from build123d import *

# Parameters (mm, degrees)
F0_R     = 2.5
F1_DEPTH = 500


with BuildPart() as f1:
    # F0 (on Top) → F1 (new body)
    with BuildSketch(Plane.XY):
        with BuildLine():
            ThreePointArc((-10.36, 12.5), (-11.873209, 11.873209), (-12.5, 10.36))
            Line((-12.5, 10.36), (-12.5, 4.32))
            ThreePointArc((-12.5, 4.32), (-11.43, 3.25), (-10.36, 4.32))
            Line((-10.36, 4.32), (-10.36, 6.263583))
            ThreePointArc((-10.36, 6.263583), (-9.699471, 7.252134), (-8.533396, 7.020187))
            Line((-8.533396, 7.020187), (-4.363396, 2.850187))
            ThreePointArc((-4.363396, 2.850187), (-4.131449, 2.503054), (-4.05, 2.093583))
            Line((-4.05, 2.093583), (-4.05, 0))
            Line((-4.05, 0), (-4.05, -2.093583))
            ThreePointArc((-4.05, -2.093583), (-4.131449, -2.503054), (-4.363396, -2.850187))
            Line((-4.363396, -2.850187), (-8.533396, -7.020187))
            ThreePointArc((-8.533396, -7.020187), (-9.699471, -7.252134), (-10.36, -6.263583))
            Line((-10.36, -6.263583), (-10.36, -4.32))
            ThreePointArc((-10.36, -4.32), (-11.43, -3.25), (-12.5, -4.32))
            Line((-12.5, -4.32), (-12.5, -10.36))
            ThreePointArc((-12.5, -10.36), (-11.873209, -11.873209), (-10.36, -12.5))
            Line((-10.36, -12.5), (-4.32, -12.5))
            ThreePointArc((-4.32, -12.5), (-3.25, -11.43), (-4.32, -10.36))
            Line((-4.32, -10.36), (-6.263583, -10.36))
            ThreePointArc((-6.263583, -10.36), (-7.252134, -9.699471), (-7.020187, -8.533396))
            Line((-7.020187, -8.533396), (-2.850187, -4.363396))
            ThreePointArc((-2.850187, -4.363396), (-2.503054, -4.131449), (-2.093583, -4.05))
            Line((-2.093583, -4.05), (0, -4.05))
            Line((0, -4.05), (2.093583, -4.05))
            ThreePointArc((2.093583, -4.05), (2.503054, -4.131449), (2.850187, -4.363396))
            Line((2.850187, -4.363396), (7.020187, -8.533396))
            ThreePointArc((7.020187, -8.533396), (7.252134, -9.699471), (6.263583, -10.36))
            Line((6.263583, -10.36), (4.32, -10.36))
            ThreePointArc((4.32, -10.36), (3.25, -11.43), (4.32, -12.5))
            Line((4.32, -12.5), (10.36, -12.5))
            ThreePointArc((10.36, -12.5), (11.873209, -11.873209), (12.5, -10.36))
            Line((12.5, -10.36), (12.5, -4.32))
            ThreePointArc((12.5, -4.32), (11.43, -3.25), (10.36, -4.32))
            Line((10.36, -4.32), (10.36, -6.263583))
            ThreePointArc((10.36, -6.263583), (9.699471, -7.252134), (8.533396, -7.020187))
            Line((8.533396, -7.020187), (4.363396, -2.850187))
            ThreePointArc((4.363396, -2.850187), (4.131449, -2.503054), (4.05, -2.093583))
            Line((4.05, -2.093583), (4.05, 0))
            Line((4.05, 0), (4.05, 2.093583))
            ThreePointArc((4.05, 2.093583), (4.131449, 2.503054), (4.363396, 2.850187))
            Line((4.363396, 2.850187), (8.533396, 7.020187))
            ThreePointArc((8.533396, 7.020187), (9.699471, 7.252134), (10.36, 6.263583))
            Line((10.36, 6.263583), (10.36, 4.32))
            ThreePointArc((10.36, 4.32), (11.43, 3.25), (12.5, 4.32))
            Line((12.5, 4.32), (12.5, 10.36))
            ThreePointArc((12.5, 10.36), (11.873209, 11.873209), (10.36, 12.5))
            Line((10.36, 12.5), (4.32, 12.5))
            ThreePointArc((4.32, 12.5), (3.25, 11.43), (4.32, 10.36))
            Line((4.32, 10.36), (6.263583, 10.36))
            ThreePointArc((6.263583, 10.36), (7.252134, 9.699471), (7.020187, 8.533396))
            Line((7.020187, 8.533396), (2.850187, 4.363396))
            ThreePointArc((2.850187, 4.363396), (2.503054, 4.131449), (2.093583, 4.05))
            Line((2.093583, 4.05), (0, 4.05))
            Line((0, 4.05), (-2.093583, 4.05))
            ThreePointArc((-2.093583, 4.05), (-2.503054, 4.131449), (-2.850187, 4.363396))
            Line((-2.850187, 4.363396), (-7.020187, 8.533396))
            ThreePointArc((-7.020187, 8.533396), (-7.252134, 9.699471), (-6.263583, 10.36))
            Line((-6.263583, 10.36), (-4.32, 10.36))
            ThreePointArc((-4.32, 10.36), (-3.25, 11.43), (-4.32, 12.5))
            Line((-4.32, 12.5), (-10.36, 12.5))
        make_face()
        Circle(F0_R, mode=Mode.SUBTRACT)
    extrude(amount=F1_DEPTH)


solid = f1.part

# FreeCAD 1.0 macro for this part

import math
import FreeCAD as App
import Part
import Sketcher

V = App.Vector

doc = App.newDocument("Part")
params = doc.addObject("Spreadsheet::Sheet", "Params")
for row, (alias, value) in enumerate([
    ("sketch1_diameter", "5 mm"),
    ("sketch1_radius", "2.139998 mm"),
    ("sketch1_width", "6.04 mm"),
    ("pad1_length", "500 mm"),
], start=1):
    params.set(f"A{row}", alias)
    params.set(f"B{row}", "=" + value)
    params.setAlias(f"B{row}", alias)

body = doc.addObject("PartDesign::Body", "Body")

# Sketch on XY plane
sketch1 = doc.addObject("Sketcher::SketchObject", "Sketch")
body.addObject(sketch1)
sketch1.AttachmentSupport = (doc.XY_Plane, [""])
sketch1.MapMode = "FlatFace"
sketch1.addGeometry(Part.ArcOfCircle(Part.Circle(V(-10.4, 10.4, 0), V(0, 0, 1), 2.1), math.radians(90), math.radians(180)), False)
sketch1.addGeometry(Part.LineSegment(V(-12.5, 10.4, 0), V(-12.5, 4.3, 0)), False)
sketch1.addGeometry(Part.ArcOfCircle(Part.Circle(V(-11.4, 4.3, 0), V(0, 0, 1), 1.1), math.radians(180), math.radians(360)), False)
sketch1.addGeometry(Part.LineSegment(V(-10.4, 4.3, 0), V(-10.4, 6.3, 0)), False)
sketch1.addGeometry(Part.ArcOfCircle(Part.Circle(V(-9.3, 6.3, 0), V(0, 0, 1), 1.1), math.radians(45), math.radians(180)), False)
sketch1.addGeometry(Part.LineSegment(V(-8.5, 7, 0), V(-4.4, 2.9, 0)), False)
sketch1.addGeometry(Part.ArcOfCircle(Part.Circle(V(-5.1, 2.1, 0), V(0, 0, 1), 1.1), math.radians(0), math.radians(45)), False)
sketch1.addGeometry(Part.LineSegment(V(-4, 2.1, 0), V(-4, -2.1, 0)), False)
sketch1.addGeometry(Part.ArcOfCircle(Part.Circle(V(-5.1, -2.1, 0), V(0, 0, 1), 1.1), math.radians(-45), math.radians(0)), False)
sketch1.addGeometry(Part.LineSegment(V(-4.4, -2.9, 0), V(-8.5, -7, 0)), False)
sketch1.addGeometry(Part.ArcOfCircle(Part.Circle(V(-9.3, -6.3, 0), V(0, 0, 1), 1.1), math.radians(-180), math.radians(-45)), False)
sketch1.addGeometry(Part.LineSegment(V(-10.4, -6.3, 0), V(-10.4, -4.3, 0)), False)
sketch1.addGeometry(Part.ArcOfCircle(Part.Circle(V(-11.4, -4.3, 0), V(0, 0, 1), 1.1), math.radians(0), math.radians(180)), False)
sketch1.addGeometry(Part.LineSegment(V(-12.5, -4.3, 0), V(-12.5, -10.4, 0)), False)
sketch1.addGeometry(Part.ArcOfCircle(Part.Circle(V(-10.4, -10.4, 0), V(0, 0, 1), 2.1), math.radians(180), math.radians(270)), False)
sketch1.addGeometry(Part.LineSegment(V(-10.4, -12.5, 0), V(-4.3, -12.5, 0)), False)
sketch1.addGeometry(Part.ArcOfCircle(Part.Circle(V(-4.3, -11.4, 0), V(0, 0, 1), 1.1), math.radians(-90), math.radians(90)), False)
sketch1.addGeometry(Part.LineSegment(V(-4.3, -10.4, 0), V(-6.3, -10.4, 0)), False)
sketch1.addGeometry(Part.ArcOfCircle(Part.Circle(V(-6.3, -9.3, 0), V(0, 0, 1), 1.1), math.radians(135), math.radians(270)), False)
sketch1.addGeometry(Part.LineSegment(V(-7, -8.5, 0), V(-2.9, -4.4, 0)), False)
sketch1.addGeometry(Part.ArcOfCircle(Part.Circle(V(-2.1, -5.1, 0), V(0, 0, 1), 1.1), math.radians(90), math.radians(135)), False)
sketch1.addGeometry(Part.LineSegment(V(-2.1, -4, 0), V(2.1, -4, 0)), False)
sketch1.addGeometry(Part.ArcOfCircle(Part.Circle(V(2.1, -5.1, 0), V(0, 0, 1), 1.1), math.radians(45), math.radians(90)), False)
sketch1.addGeometry(Part.LineSegment(V(2.9, -4.4, 0), V(7, -8.5, 0)), False)
sketch1.addGeometry(Part.ArcOfCircle(Part.Circle(V(6.3, -9.3, 0), V(0, 0, 1), 1.1), math.radians(-90), math.radians(45)), False)
sketch1.addGeometry(Part.LineSegment(V(6.3, -10.4, 0), V(4.3, -10.4, 0)), False)
sketch1.addGeometry(Part.ArcOfCircle(Part.Circle(V(4.3, -11.4, 0), V(0, 0, 1), 1.1), math.radians(90), math.radians(270)), False)
sketch1.addGeometry(Part.LineSegment(V(4.3, -12.5, 0), V(10.4, -12.5, 0)), False)
sketch1.addGeometry(Part.ArcOfCircle(Part.Circle(V(10.4, -10.4, 0), V(0, 0, 1), 2.1), math.radians(-90), math.radians(0)), False)
sketch1.addGeometry(Part.LineSegment(V(12.5, -10.4, 0), V(12.5, -4.3, 0)), False)
sketch1.addGeometry(Part.ArcOfCircle(Part.Circle(V(11.4, -4.3, 0), V(0, 0, 1), 1.1), math.radians(0), math.radians(180)), False)
sketch1.addGeometry(Part.LineSegment(V(10.4, -4.3, 0), V(10.4, -6.3, 0)), False)
sketch1.addGeometry(Part.ArcOfCircle(Part.Circle(V(9.3, -6.3, 0), V(0, 0, 1), 1.1), math.radians(-135), math.radians(0)), False)
sketch1.addGeometry(Part.LineSegment(V(8.5, -7, 0), V(4.4, -2.9, 0)), False)
sketch1.addGeometry(Part.ArcOfCircle(Part.Circle(V(5.1, -2.1, 0), V(0, 0, 1), 1.1), math.radians(-180), math.radians(-135)), False)
sketch1.addGeometry(Part.LineSegment(V(4, -2.1, 0), V(4, 2.1, 0)), False)
sketch1.addGeometry(Part.ArcOfCircle(Part.Circle(V(5.1, 2.1, 0), V(0, 0, 1), 1.1), math.radians(135), math.radians(180)), False)
sketch1.addGeometry(Part.LineSegment(V(4.4, 2.9, 0), V(8.5, 7, 0)), False)
sketch1.addGeometry(Part.ArcOfCircle(Part.Circle(V(9.3, 6.3, 0), V(0, 0, 1), 1.1), math.radians(0), math.radians(135)), False)
sketch1.addGeometry(Part.LineSegment(V(10.4, 6.3, 0), V(10.4, 4.3, 0)), False)
sketch1.addGeometry(Part.ArcOfCircle(Part.Circle(V(11.4, 4.3, 0), V(0, 0, 1), 1.1), math.radians(180), math.radians(360)), False)
sketch1.addGeometry(Part.LineSegment(V(12.5, 4.3, 0), V(12.5, 10.4, 0)), False)
sketch1.addGeometry(Part.ArcOfCircle(Part.Circle(V(10.4, 10.4, 0), V(0, 0, 1), 2.1), math.radians(0), math.radians(90)), False)
sketch1.addGeometry(Part.LineSegment(V(10.4, 12.5, 0), V(4.3, 12.5, 0)), False)
sketch1.addGeometry(Part.ArcOfCircle(Part.Circle(V(4.3, 11.4, 0), V(0, 0, 1), 1.1), math.radians(90), math.radians(270)), False)
sketch1.addGeometry(Part.LineSegment(V(4.3, 10.4, 0), V(6.3, 10.4, 0)), False)
sketch1.addGeometry(Part.ArcOfCircle(Part.Circle(V(6.3, 9.3, 0), V(0, 0, 1), 1.1), math.radians(-45), math.radians(90)), False)
sketch1.addGeometry(Part.LineSegment(V(7, 8.5, 0), V(2.9, 4.4, 0)), False)
sketch1.addGeometry(Part.ArcOfCircle(Part.Circle(V(2.1, 5.1, 0), V(0, 0, 1), 1.1), math.radians(-90), math.radians(-45)), False)
sketch1.addGeometry(Part.LineSegment(V(2.1, 4, 0), V(-2.1, 4, 0)), False)
sketch1.addGeometry(Part.ArcOfCircle(Part.Circle(V(-2.1, 5.1, 0), V(0, 0, 1), 1.1), math.radians(-135), math.radians(-90)), False)
sketch1.addGeometry(Part.LineSegment(V(-2.9, 4.4, 0), V(-7, 8.5, 0)), False)
sketch1.addGeometry(Part.ArcOfCircle(Part.Circle(V(-6.3, 9.3, 0), V(0, 0, 1), 1.1), math.radians(90), math.radians(225)), False)
sketch1.addGeometry(Part.LineSegment(V(-6.3, 10.4, 0), V(-4.3, 10.4, 0)), False)
sketch1.addGeometry(Part.ArcOfCircle(Part.Circle(V(-4.3, 11.4, 0), V(0, 0, 1), 1.1), math.radians(-90), math.radians(90)), False)
sketch1.addGeometry(Part.LineSegment(V(-4.3, 12.5, 0), V(-10.4, 12.5, 0)), False)
sketch1.addGeometry(Part.Circle(V(0, 0, 0), V(0, 0, 1), 2.5), False)
sketch1.addConstraint(Sketcher.Constraint("Tangent", 0, 2, 1, 1))
sketch1.addConstraint(Sketcher.Constraint("Tangent", 1, 2, 2, 1))
sketch1.addConstraint(Sketcher.Constraint("Tangent", 2, 2, 3, 1))
sketch1.addConstraint(Sketcher.Constraint("Tangent", 3, 2, 4, 2))
sketch1.addConstraint(Sketcher.Constraint("Tangent", 4, 1, 5, 1))
sketch1.addConstraint(Sketcher.Constraint("Tangent", 5, 2, 6, 2))
sketch1.addConstraint(Sketcher.Constraint("Tangent", 6, 1, 7, 1))
sketch1.addConstraint(Sketcher.Constraint("Tangent", 7, 2, 8, 2))
sketch1.addConstraint(Sketcher.Constraint("Tangent", 8, 1, 9, 1))
sketch1.addConstraint(Sketcher.Constraint("Tangent", 9, 2, 10, 2))
sketch1.addConstraint(Sketcher.Constraint("Tangent", 10, 1, 11, 1))
sketch1.addConstraint(Sketcher.Constraint("Tangent", 11, 2, 12, 1))
sketch1.addConstraint(Sketcher.Constraint("Tangent", 12, 2, 13, 1))
sketch1.addConstraint(Sketcher.Constraint("Tangent", 13, 2, 14, 1))
sketch1.addConstraint(Sketcher.Constraint("Tangent", 14, 2, 15, 1))
sketch1.addConstraint(Sketcher.Constraint("Tangent", 15, 2, 16, 1))
sketch1.addConstraint(Sketcher.Constraint("Tangent", 16, 2, 17, 1))
sketch1.addConstraint(Sketcher.Constraint("Tangent", 17, 2, 18, 2))
sketch1.addConstraint(Sketcher.Constraint("Tangent", 18, 1, 19, 1))
sketch1.addConstraint(Sketcher.Constraint("Tangent", 19, 2, 20, 2))
sketch1.addConstraint(Sketcher.Constraint("Tangent", 20, 1, 21, 1))
sketch1.addConstraint(Sketcher.Constraint("Tangent", 21, 2, 22, 2))
sketch1.addConstraint(Sketcher.Constraint("Tangent", 22, 1, 23, 1))
sketch1.addConstraint(Sketcher.Constraint("Tangent", 23, 2, 24, 2))
sketch1.addConstraint(Sketcher.Constraint("Tangent", 24, 1, 25, 1))
sketch1.addConstraint(Sketcher.Constraint("Tangent", 25, 2, 26, 1))
sketch1.addConstraint(Sketcher.Constraint("Tangent", 26, 2, 27, 1))
sketch1.addConstraint(Sketcher.Constraint("Tangent", 27, 2, 28, 1))
sketch1.addConstraint(Sketcher.Constraint("Tangent", 28, 2, 29, 1))
sketch1.addConstraint(Sketcher.Constraint("Tangent", 29, 2, 30, 1))
sketch1.addConstraint(Sketcher.Constraint("Tangent", 30, 2, 31, 1))
sketch1.addConstraint(Sketcher.Constraint("Tangent", 31, 2, 32, 2))
sketch1.addConstraint(Sketcher.Constraint("Tangent", 32, 1, 33, 1))
sketch1.addConstraint(Sketcher.Constraint("Tangent", 33, 2, 34, 2))
sketch1.addConstraint(Sketcher.Constraint("Tangent", 34, 1, 35, 1))
sketch1.addConstraint(Sketcher.Constraint("Tangent", 35, 2, 36, 2))
sketch1.addConstraint(Sketcher.Constraint("Tangent", 36, 1, 37, 1))
sketch1.addConstraint(Sketcher.Constraint("Tangent", 37, 2, 38, 2))
sketch1.addConstraint(Sketcher.Constraint("Tangent", 38, 1, 39, 1))
sketch1.addConstraint(Sketcher.Constraint("Tangent", 39, 2, 40, 1))
sketch1.addConstraint(Sketcher.Constraint("Tangent", 40, 2, 41, 1))
sketch1.addConstraint(Sketcher.Constraint("Tangent", 41, 2, 42, 1))
sketch1.addConstraint(Sketcher.Constraint("Tangent", 42, 2, 43, 1))
sketch1.addConstraint(Sketcher.Constraint("Tangent", 43, 2, 44, 1))
sketch1.addConstraint(Sketcher.Constraint("Tangent", 44, 2, 45, 1))
sketch1.addConstraint(Sketcher.Constraint("Tangent", 45, 2, 46, 2))
sketch1.addConstraint(Sketcher.Constraint("Tangent", 46, 1, 47, 1))
sketch1.addConstraint(Sketcher.Constraint("Tangent", 47, 2, 48, 2))
sketch1.addConstraint(Sketcher.Constraint("Tangent", 48, 1, 49, 1))
sketch1.addConstraint(Sketcher.Constraint("Tangent", 49, 2, 50, 2))
sketch1.addConstraint(Sketcher.Constraint("Tangent", 50, 1, 51, 1))
sketch1.addConstraint(Sketcher.Constraint("Tangent", 51, 2, 52, 2))
sketch1.addConstraint(Sketcher.Constraint("Tangent", 52, 1, 53, 1))
sketch1.addConstraint(Sketcher.Constraint("Tangent", 53, 2, 54, 1))
sketch1.addConstraint(Sketcher.Constraint("Tangent", 54, 2, 55, 1))
sketch1.addConstraint(Sketcher.Constraint("Tangent", 55, 2, 0, 1))
sketch1.addConstraint(Sketcher.Constraint("Vertical", 1))
sketch1.addConstraint(Sketcher.Constraint("Vertical", 3))
sketch1.addConstraint(Sketcher.Constraint("Vertical", 7))
sketch1.addConstraint(Sketcher.Constraint("Vertical", 11))
sketch1.addConstraint(Sketcher.Constraint("Vertical", 13))
sketch1.addConstraint(Sketcher.Constraint("Horizontal", 15))
sketch1.addConstraint(Sketcher.Constraint("Horizontal", 17))
sketch1.addConstraint(Sketcher.Constraint("Horizontal", 21))
sketch1.addConstraint(Sketcher.Constraint("Horizontal", 25))
sketch1.addConstraint(Sketcher.Constraint("Horizontal", 27))
sketch1.addConstraint(Sketcher.Constraint("Vertical", 29))
sketch1.addConstraint(Sketcher.Constraint("Vertical", 31))
sketch1.addConstraint(Sketcher.Constraint("Vertical", 35))
sketch1.addConstraint(Sketcher.Constraint("Vertical", 39))
sketch1.addConstraint(Sketcher.Constraint("Vertical", 41))
sketch1.addConstraint(Sketcher.Constraint("Horizontal", 43))
sketch1.addConstraint(Sketcher.Constraint("Horizontal", 45))
sketch1.addConstraint(Sketcher.Constraint("Horizontal", 49))
sketch1.addConstraint(Sketcher.Constraint("Horizontal", 53))
sketch1.addConstraint(Sketcher.Constraint("Horizontal", 55))
sketch1.addConstraint(Sketcher.Constraint("Coincident", 56, 3, -1, 1))
sketch1.addConstraint(Sketcher.Constraint("Equal", 2, 4))
sketch1.addConstraint(Sketcher.Constraint("Equal", 4, 6))
sketch1.addConstraint(Sketcher.Constraint("Equal", 6, 8))
sketch1.addConstraint(Sketcher.Constraint("Equal", 8, 10))
sketch1.addConstraint(Sketcher.Constraint("Equal", 10, 12))
sketch1.addConstraint(Sketcher.Constraint("Equal", 0, 14))
sketch1.addConstraint(Sketcher.Constraint("Equal", 12, 16))
sketch1.addConstraint(Sketcher.Constraint("Equal", 16, 18))
sketch1.addConstraint(Sketcher.Constraint("Equal", 18, 20))
sketch1.addConstraint(Sketcher.Constraint("Equal", 20, 22))
sketch1.addConstraint(Sketcher.Constraint("Equal", 22, 24))
sketch1.addConstraint(Sketcher.Constraint("Equal", 24, 26))
sketch1.addConstraint(Sketcher.Constraint("Equal", 14, 28))
sketch1.addConstraint(Sketcher.Constraint("Equal", 26, 30))
sketch1.addConstraint(Sketcher.Constraint("Equal", 30, 32))
sketch1.addConstraint(Sketcher.Constraint("Equal", 32, 34))
sketch1.addConstraint(Sketcher.Constraint("Equal", 34, 36))
sketch1.addConstraint(Sketcher.Constraint("Equal", 36, 38))
sketch1.addConstraint(Sketcher.Constraint("Equal", 38, 40))
sketch1.addConstraint(Sketcher.Constraint("Equal", 28, 42))
sketch1.addConstraint(Sketcher.Constraint("Equal", 40, 44))
sketch1.addConstraint(Sketcher.Constraint("Equal", 44, 46))
sketch1.addConstraint(Sketcher.Constraint("Equal", 46, 48))
sketch1.addConstraint(Sketcher.Constraint("Equal", 48, 50))
sketch1.addConstraint(Sketcher.Constraint("Equal", 50, 52))
sketch1.addConstraint(Sketcher.Constraint("Equal", 52, 54))
sketch1.addConstraint(Sketcher.Constraint("Symmetric", 0, 3, 28, 3, -1, 1))
sketch1.addConstraint(Sketcher.Constraint("Symmetric", 6, 3, 34, 3, -1, 1))
sketch1.addConstraint(Sketcher.Constraint("Symmetric", 10, 3, 38, 3, -1, 1))
sketch1.addConstraint(Sketcher.Constraint("Symmetric", 16, 3, 44, 3, -1, 1))
sketch1.addConstraint(Sketcher.Constraint("Symmetric", 20, 3, 48, 3, -1, 1))
sketch1.addConstraint(Sketcher.Constraint("Symmetric", 22, 1, 50, 1, -1, 1))
sketch1.addConstraint(Sketcher.Constraint("Symmetric", 18, 3, 24, 3, -2))
sketch1.addConstraint(Sketcher.Constraint("Symmetric", 12, 3, 30, 3, -2))
sketch1.addConstraint(Sketcher.Constraint("Symmetric", 9, 2, 32, 1, -2))
sketch1.addConstraint(Sketcher.Constraint("Symmetric", 5, 2, 36, 1, -2))
sketch1.addConstraint(Sketcher.Constraint("Symmetric", 47, 2, 50, 1, -2))
sketch1.addConstraint(Sketcher.Constraint("Perpendicular", 5, 9))
sketch1.addConstraint(Sketcher.Constraint("Parallel", 9, 19))
sketch1.addConstraint(Sketcher.Constraint("Horizontal", 2, 3, 40, 3))
sketch1.addConstraint(Sketcher.Constraint("Horizontal", 13, 2, 16, 2))
sketch1.addConstraint(Sketcher.Constraint("Vertical", 26, 3, 44, 3))
sketch1.addConstraint(Sketcher.Constraint("Vertical", 16, 3, 54, 3))
sketch1.addConstraint(Sketcher.Constraint("Equal", 55, 1))
sketch1.addConstraint(Sketcher.Constraint("Equal", 53, 3))
sketch1.addConstraint(Sketcher.Constraint("Equal", 49, 7))
sketch1.addConstraint(Sketcher.Constraint("Equal", 3, 11))
sketch1.addConstraint(Sketcher.Constraint("Equal", 9, 19))
sketch1.addConstraint(Sketcher.Constraint("Diameter", 56, 5.0))
sketch1.addConstraint(Sketcher.Constraint("Radius", 0, 2.139998))
sketch1.addConstraint(Sketcher.Constraint("DistanceX", 15, 1, 15, 2, 6.04))
sketch1.addConstraint(Sketcher.Constraint("DistanceX", 0, 2, -1, 1, 12.5))
sketch1.addConstraint(Sketcher.Constraint("DistanceX", 6, 3, -1, 1, 5.12))
sketch1.addConstraint(Sketcher.Constraint("DistanceX", 17, 2, 17, 1, 1.943583))
sketch1.setExpression("Constraints[125]", "Params.sketch1_diameter")
sketch1.setExpression("Constraints[126]", "Params.sketch1_radius")
sketch1.setExpression("Constraints[127]", "Params.sketch1_width")
pad1 = doc.addObject("PartDesign::Pad", "Pad")
body.addObject(pad1)
pad1.Profile = sketch1
pad1.setExpression("Length", "Params.pad1_length")

doc.recompute()
